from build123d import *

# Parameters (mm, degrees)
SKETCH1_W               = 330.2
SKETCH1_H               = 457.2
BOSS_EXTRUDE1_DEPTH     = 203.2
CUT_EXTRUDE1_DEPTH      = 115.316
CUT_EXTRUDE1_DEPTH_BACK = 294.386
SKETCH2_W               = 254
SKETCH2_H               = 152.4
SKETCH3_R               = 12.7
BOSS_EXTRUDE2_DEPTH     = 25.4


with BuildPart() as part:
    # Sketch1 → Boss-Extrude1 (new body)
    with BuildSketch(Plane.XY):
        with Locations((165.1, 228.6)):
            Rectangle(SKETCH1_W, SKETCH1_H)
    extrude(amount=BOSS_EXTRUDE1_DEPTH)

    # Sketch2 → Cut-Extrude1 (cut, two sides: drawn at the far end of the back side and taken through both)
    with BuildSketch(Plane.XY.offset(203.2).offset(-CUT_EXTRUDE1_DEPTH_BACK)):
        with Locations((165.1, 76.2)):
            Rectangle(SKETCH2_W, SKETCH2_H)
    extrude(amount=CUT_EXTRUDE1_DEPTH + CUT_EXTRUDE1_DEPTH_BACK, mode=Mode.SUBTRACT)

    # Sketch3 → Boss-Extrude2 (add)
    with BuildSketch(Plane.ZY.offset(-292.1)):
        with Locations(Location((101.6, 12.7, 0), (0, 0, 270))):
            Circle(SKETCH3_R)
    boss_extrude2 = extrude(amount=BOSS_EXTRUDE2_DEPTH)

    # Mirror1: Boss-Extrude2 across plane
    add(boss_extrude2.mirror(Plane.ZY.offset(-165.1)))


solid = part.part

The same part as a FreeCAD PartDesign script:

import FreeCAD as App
import Part
import Sketcher
Q = App.Units.Quantity

doc = App.newDocument("Part")
body = doc.addObject("PartDesign::Body", "Body")

sketch1 = body.newObject("Sketcher::SketchObject", "Sketch")
sketch1.AttachmentSupport = (doc.getObject("XY_Plane"), [""])
sketch1.MapMode = "FlatFace"
sketch1.addGeometry(Part.LineSegment(App.Vector(0, 457.2, 0), App.Vector(0, 0, 0)), False)
sketch1.addGeometry(Part.LineSegment(App.Vector(0, 0, 0), App.Vector(330.2, 0, 0)), False)
sketch1.addGeometry(Part.LineSegment(App.Vector(330.2, 0, 0), App.Vector(330.2, 457.2, 0)), False)
sketch1.addGeometry(Part.LineSegment(App.Vector(330.2, 457.2, 0), App.Vector(0, 457.2, 0)), False)
sketch1.addConstraint(Sketcher.Constraint("Coincident", 0, 2, 1, 1))
sketch1.addConstraint(Sketcher.Constraint("Coincident", 1, 2, 2, 1))
sketch1.addConstraint(Sketcher.Constraint("Coincident", 2, 2, 3, 1))
sketch1.addConstraint(Sketcher.Constraint("Coincident", 3, 2, 0, 1))
sketch1.addConstraint(Sketcher.Constraint("Vertical", 0))
sketch1.addConstraint(Sketcher.Constraint("Horizontal", 1))
sketch1.addConstraint(Sketcher.Constraint("Vertical", 2))
sketch1.addConstraint(Sketcher.Constraint("Horizontal", 3))
sketch1.addConstraint(Sketcher.Constraint("Coincident", 0, 2, -1, 1))
sketch1.addConstraint(Sketcher.Constraint("DistanceX", 1, 1, 1, 2, Q("13 in")))
sketch1.addConstraint(Sketcher.Constraint("DistanceY", 0, 2, 0, 1, Q("18 in")))
pad1 = body.newObject("PartDesign::Pad", "Pad")
pad1.Profile = sketch1
pad1.Length = Q("8 in")

sketch2 = body.newObject("Sketcher::SketchObject", "Sketch001")
sketch2.AttachmentSupport = (doc.getObject("XY_Plane"), [""])
sketch2.MapMode = "FlatFace"
sketch2.AttachmentOffset = App.Placement(App.Vector(0, 0, 8 * 25.4), App.Rotation())
sketch2.addGeometry(Part.LineSegment(App.Vector(38.1, 152.4, 0), App.Vector(38.1, 0, 0)), False)
sketch2.addGeometry(Part.LineSegment(App.Vector(38.1, 0, 0), App.Vector(292.1, 0, 0)), False)
sketch2.addGeometry(Part.LineSegment(App.Vector(292.1, 0, 0), App.Vector(292.1, 152.4, 0)), False)
sketch2.addGeometry(Part.LineSegment(App.Vector(292.1, 152.4, 0), App.Vector(38.1, 152.4, 0)), False)
sketch2.addConstraint(Sketcher.Constraint("Coincident", 0, 2, 1, 1))
sketch2.addConstraint(Sketcher.Constraint("Coincident", 1, 2, 2, 1))
sketch2.addConstraint(Sketcher.Constraint("Coincident", 2, 2, 3, 1))
sketch2.addConstraint(Sketcher.Constraint("Coincident", 3, 2, 0, 1))
sketch2.addConstraint(Sketcher.Constraint("Vertical", 0))
sketch2.addConstraint(Sketcher.Constraint("Horizontal", 1))
sketch2.addConstraint(Sketcher.Constraint("Vertical", 2))
sketch2.addConstraint(Sketcher.Constraint("Horizontal", 3))
sketch2.addConstraint(Sketcher.Constraint("PointOnObject", 0, 2, -1))
sketch2.addConstraint(Sketcher.Constraint("DistanceX", 1, 1, 1, 2, Q("10 in")))
sketch2.addConstraint(Sketcher.Constraint("DistanceY", 0, 2, 0, 1, Q("6 in")))
sketch2.addConstraint(Sketcher.Constraint("DistanceX", -1, 1, 0, 2, Q("1.5 in")))
pocket1 = body.newObject("PartDesign::Pocket", "Pocket")
pocket1.Profile = sketch2
pocket1.Type = "ThroughAll"
pocket1.Midplane = True

sketch3 = body.newObject("Sketcher::SketchObject", "Sketch002")
sketch3.AttachmentSupport = (doc.getObject("YZ_Plane"), [""])
sketch3.MapMode = "FlatFace"
sketch3.AttachmentOffset = App.Placement(App.Vector(0, 0, 11.5 * 25.4), App.Rotation())
sketch3.addGeometry(Part.Circle(App.Vector(12.7, 101.6, 0), App.Vector(0, 0, 1), 12.7), False)
sketch3.addConstraint(Sketcher.Constraint("Diameter", 0, Q("1 in")))
sketch3.addConstraint(Sketcher.Constraint("DistanceY", -1, 1, 0, 3, Q("4 in")))
sketch3.addConstraint(Sketcher.Constraint("DistanceX", -1, 1, 0, 3, Q("0.5 in")))
pad2 = body.newObject("PartDesign::Pad", "Pad001")
pad2.Profile = sketch3
pad2.Length = Q("1 in")
pad2.Reversed = True
doc.recompute()

datumplane = body.newObject("PartDesign::Plane", "DatumPlane")
datumplane.AttachmentSupport = (doc.getObject("YZ_Plane"), [""])
datumplane.MapMode = "FlatFace"
datumplane.AttachmentOffset = App.Placement(App.Vector(0, 0, 6.5 * 25.4), App.Rotation())
mirrored = body.newObject("PartDesign::Mirrored", "Mirrored")
mirrored.Originals = [pad2]
mirrored.MirrorPlane = (datumplane, [""])
body.Tip = mirrored

doc.recompute()
